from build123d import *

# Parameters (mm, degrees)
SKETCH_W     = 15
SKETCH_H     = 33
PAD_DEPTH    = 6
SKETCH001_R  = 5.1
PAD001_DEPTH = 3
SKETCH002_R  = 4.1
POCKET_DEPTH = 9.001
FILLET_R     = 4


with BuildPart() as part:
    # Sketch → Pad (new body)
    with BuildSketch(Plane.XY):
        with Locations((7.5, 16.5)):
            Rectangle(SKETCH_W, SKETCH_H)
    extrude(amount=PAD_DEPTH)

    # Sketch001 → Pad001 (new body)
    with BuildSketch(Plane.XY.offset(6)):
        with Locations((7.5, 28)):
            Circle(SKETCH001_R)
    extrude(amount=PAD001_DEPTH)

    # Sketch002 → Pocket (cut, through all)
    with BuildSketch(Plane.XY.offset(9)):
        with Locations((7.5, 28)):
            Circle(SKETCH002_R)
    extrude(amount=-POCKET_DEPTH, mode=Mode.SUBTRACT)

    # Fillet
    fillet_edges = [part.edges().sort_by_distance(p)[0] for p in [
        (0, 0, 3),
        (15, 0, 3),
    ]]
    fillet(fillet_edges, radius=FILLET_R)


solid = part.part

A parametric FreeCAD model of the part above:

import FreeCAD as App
import Part
import Sketcher
from FreeCAD import Vector
Q = App.Units.Quantity


def edges_at(feature, points):
    """Names of the edges that pass closest to the given points."""
    edges = feature.Shape.Edges
    near = lambda p: min(range(len(edges)), key=lambda i: edges[i].distToShape(Part.Vertex(*p))[0])
    return sorted({f"Edge{near(p) + 1}" for p in points})


def add_polygon(sketch, points):
    """Adds a closed chain of lines whose ends are joined by coincident constraints."""
    first, n = sketch.GeometryCount, len(points)
    for a, b in zip(points, points[1:] + points[:1]):
        sketch.addGeometry(Part.LineSegment(App.Vector(*a, 0), App.Vector(*b, 0)), False)
    for i in range(n):
        sketch.addConstraint(Sketcher.Constraint("Coincident", first + i, 2, first + (i + 1) % n, 1))

doc = App.newDocument("Part")
body = doc.addObject("PartDesign::Body", "Body")

# Sketch on XY plane
sketch1 = doc.addObject("Sketcher::SketchObject", "Sketch")
body.addObject(sketch1)
sketch1.AttachmentSupport = (doc.XY_Plane, [""])
sketch1.MapMode = "FlatFace"
add_polygon(sketch1, [(0, 33), (0, 0), (15, 0), (15, 33)])  # lines 0-3
sketch1.addConstraint(Sketcher.Constraint("Vertical", 0))
sketch1.addConstraint(Sketcher.Constraint("Horizontal", 1))
sketch1.addConstraint(Sketcher.Constraint("Vertical", 2))
sketch1.addConstraint(Sketcher.Constraint("Horizontal", 3))
sketch1.addConstraint(Sketcher.Constraint("Coincident", 0, 2, -1, 1))
sketch1.addConstraint(Sketcher.Constraint("DistanceX", 1, 1, 1, 2, Q("15 mm")))
sketch1.addConstraint(Sketcher.Constraint("DistanceY", 0, 2, 0, 1, Q("33 mm")))
pad1 = doc.addObject("PartDesign::Pad", "Pad")
body.addObject(pad1)
pad1.Profile = sketch1
pad1.Length = 6

# Sketch on XY plane
sketch2 = doc.addObject("Sketcher::SketchObject", "Sketch001")
body.addObject(sketch2)
sketch2.AttachmentSupport = (doc.XY_Plane, [""])
sketch2.MapMode = "FlatFace"
sketch2.AttachmentOffset = App.Placement(Vector(0, 0, 6), App.Rotation())
sketch2.addGeometry(Part.Circle(Vector(8, 28, 0), Vector(0, 0, 1), 5), False)
sketch2.addConstraint(Sketcher.Constraint("Diameter", 0, Q("10.2 mm")))
sketch2.addConstraint(Sketcher.Constraint("DistanceY", -1, 1, 0, 3, Q("28 mm")))
sketch2.addConstraint(Sketcher.Constraint("DistanceX", -1, 1, 0, 3, Q("7.5 mm")))
pad2 = doc.addObject("PartDesign::Pad", "Pad001")
body.addObject(pad2)
pad2.Profile = sketch2
pad2.Length = 3

# Sketch on XY plane
sketch3 = doc.addObject("Sketcher::SketchObject", "Sketch002")
body.addObject(sketch3)
sketch3.AttachmentSupport = (doc.XY_Plane, [""])
sketch3.MapMode = "FlatFace"
sketch3.AttachmentOffset = App.Placement(Vector(0, 0, 9), App.Rotation())
sketch3.addGeometry(Part.Circle(Vector(7.5, 28, 0), Vector(0, 0, 1), 4.1), False)
sketch3.addConstraint(Sketcher.Constraint("Diameter", 0, Q("8.2 mm")))
sketch3.addConstraint(Sketcher.Constraint("DistanceY", -1, 1, 0, 3, Q("28 mm")))
sketch3.addConstraint(Sketcher.Constraint("DistanceX", -1, 1, 0, 3, Q("7.5 mm")))
pocket1 = doc.addObject("PartDesign::Pocket", "Pocket")
body.addObject(pocket1)
pocket1.Profile = sketch3
pocket1.Type = "ThroughAll"
doc.recompute()

fillet = doc.addObject("PartDesign::Fillet", "Fillet")
body.addObject(fillet)
fillet.Base = (pocket1, edges_at(pocket1, [(0, 0, 3), (15, 0, 3)]))
fillet.Radius = 4

doc.recompute()
